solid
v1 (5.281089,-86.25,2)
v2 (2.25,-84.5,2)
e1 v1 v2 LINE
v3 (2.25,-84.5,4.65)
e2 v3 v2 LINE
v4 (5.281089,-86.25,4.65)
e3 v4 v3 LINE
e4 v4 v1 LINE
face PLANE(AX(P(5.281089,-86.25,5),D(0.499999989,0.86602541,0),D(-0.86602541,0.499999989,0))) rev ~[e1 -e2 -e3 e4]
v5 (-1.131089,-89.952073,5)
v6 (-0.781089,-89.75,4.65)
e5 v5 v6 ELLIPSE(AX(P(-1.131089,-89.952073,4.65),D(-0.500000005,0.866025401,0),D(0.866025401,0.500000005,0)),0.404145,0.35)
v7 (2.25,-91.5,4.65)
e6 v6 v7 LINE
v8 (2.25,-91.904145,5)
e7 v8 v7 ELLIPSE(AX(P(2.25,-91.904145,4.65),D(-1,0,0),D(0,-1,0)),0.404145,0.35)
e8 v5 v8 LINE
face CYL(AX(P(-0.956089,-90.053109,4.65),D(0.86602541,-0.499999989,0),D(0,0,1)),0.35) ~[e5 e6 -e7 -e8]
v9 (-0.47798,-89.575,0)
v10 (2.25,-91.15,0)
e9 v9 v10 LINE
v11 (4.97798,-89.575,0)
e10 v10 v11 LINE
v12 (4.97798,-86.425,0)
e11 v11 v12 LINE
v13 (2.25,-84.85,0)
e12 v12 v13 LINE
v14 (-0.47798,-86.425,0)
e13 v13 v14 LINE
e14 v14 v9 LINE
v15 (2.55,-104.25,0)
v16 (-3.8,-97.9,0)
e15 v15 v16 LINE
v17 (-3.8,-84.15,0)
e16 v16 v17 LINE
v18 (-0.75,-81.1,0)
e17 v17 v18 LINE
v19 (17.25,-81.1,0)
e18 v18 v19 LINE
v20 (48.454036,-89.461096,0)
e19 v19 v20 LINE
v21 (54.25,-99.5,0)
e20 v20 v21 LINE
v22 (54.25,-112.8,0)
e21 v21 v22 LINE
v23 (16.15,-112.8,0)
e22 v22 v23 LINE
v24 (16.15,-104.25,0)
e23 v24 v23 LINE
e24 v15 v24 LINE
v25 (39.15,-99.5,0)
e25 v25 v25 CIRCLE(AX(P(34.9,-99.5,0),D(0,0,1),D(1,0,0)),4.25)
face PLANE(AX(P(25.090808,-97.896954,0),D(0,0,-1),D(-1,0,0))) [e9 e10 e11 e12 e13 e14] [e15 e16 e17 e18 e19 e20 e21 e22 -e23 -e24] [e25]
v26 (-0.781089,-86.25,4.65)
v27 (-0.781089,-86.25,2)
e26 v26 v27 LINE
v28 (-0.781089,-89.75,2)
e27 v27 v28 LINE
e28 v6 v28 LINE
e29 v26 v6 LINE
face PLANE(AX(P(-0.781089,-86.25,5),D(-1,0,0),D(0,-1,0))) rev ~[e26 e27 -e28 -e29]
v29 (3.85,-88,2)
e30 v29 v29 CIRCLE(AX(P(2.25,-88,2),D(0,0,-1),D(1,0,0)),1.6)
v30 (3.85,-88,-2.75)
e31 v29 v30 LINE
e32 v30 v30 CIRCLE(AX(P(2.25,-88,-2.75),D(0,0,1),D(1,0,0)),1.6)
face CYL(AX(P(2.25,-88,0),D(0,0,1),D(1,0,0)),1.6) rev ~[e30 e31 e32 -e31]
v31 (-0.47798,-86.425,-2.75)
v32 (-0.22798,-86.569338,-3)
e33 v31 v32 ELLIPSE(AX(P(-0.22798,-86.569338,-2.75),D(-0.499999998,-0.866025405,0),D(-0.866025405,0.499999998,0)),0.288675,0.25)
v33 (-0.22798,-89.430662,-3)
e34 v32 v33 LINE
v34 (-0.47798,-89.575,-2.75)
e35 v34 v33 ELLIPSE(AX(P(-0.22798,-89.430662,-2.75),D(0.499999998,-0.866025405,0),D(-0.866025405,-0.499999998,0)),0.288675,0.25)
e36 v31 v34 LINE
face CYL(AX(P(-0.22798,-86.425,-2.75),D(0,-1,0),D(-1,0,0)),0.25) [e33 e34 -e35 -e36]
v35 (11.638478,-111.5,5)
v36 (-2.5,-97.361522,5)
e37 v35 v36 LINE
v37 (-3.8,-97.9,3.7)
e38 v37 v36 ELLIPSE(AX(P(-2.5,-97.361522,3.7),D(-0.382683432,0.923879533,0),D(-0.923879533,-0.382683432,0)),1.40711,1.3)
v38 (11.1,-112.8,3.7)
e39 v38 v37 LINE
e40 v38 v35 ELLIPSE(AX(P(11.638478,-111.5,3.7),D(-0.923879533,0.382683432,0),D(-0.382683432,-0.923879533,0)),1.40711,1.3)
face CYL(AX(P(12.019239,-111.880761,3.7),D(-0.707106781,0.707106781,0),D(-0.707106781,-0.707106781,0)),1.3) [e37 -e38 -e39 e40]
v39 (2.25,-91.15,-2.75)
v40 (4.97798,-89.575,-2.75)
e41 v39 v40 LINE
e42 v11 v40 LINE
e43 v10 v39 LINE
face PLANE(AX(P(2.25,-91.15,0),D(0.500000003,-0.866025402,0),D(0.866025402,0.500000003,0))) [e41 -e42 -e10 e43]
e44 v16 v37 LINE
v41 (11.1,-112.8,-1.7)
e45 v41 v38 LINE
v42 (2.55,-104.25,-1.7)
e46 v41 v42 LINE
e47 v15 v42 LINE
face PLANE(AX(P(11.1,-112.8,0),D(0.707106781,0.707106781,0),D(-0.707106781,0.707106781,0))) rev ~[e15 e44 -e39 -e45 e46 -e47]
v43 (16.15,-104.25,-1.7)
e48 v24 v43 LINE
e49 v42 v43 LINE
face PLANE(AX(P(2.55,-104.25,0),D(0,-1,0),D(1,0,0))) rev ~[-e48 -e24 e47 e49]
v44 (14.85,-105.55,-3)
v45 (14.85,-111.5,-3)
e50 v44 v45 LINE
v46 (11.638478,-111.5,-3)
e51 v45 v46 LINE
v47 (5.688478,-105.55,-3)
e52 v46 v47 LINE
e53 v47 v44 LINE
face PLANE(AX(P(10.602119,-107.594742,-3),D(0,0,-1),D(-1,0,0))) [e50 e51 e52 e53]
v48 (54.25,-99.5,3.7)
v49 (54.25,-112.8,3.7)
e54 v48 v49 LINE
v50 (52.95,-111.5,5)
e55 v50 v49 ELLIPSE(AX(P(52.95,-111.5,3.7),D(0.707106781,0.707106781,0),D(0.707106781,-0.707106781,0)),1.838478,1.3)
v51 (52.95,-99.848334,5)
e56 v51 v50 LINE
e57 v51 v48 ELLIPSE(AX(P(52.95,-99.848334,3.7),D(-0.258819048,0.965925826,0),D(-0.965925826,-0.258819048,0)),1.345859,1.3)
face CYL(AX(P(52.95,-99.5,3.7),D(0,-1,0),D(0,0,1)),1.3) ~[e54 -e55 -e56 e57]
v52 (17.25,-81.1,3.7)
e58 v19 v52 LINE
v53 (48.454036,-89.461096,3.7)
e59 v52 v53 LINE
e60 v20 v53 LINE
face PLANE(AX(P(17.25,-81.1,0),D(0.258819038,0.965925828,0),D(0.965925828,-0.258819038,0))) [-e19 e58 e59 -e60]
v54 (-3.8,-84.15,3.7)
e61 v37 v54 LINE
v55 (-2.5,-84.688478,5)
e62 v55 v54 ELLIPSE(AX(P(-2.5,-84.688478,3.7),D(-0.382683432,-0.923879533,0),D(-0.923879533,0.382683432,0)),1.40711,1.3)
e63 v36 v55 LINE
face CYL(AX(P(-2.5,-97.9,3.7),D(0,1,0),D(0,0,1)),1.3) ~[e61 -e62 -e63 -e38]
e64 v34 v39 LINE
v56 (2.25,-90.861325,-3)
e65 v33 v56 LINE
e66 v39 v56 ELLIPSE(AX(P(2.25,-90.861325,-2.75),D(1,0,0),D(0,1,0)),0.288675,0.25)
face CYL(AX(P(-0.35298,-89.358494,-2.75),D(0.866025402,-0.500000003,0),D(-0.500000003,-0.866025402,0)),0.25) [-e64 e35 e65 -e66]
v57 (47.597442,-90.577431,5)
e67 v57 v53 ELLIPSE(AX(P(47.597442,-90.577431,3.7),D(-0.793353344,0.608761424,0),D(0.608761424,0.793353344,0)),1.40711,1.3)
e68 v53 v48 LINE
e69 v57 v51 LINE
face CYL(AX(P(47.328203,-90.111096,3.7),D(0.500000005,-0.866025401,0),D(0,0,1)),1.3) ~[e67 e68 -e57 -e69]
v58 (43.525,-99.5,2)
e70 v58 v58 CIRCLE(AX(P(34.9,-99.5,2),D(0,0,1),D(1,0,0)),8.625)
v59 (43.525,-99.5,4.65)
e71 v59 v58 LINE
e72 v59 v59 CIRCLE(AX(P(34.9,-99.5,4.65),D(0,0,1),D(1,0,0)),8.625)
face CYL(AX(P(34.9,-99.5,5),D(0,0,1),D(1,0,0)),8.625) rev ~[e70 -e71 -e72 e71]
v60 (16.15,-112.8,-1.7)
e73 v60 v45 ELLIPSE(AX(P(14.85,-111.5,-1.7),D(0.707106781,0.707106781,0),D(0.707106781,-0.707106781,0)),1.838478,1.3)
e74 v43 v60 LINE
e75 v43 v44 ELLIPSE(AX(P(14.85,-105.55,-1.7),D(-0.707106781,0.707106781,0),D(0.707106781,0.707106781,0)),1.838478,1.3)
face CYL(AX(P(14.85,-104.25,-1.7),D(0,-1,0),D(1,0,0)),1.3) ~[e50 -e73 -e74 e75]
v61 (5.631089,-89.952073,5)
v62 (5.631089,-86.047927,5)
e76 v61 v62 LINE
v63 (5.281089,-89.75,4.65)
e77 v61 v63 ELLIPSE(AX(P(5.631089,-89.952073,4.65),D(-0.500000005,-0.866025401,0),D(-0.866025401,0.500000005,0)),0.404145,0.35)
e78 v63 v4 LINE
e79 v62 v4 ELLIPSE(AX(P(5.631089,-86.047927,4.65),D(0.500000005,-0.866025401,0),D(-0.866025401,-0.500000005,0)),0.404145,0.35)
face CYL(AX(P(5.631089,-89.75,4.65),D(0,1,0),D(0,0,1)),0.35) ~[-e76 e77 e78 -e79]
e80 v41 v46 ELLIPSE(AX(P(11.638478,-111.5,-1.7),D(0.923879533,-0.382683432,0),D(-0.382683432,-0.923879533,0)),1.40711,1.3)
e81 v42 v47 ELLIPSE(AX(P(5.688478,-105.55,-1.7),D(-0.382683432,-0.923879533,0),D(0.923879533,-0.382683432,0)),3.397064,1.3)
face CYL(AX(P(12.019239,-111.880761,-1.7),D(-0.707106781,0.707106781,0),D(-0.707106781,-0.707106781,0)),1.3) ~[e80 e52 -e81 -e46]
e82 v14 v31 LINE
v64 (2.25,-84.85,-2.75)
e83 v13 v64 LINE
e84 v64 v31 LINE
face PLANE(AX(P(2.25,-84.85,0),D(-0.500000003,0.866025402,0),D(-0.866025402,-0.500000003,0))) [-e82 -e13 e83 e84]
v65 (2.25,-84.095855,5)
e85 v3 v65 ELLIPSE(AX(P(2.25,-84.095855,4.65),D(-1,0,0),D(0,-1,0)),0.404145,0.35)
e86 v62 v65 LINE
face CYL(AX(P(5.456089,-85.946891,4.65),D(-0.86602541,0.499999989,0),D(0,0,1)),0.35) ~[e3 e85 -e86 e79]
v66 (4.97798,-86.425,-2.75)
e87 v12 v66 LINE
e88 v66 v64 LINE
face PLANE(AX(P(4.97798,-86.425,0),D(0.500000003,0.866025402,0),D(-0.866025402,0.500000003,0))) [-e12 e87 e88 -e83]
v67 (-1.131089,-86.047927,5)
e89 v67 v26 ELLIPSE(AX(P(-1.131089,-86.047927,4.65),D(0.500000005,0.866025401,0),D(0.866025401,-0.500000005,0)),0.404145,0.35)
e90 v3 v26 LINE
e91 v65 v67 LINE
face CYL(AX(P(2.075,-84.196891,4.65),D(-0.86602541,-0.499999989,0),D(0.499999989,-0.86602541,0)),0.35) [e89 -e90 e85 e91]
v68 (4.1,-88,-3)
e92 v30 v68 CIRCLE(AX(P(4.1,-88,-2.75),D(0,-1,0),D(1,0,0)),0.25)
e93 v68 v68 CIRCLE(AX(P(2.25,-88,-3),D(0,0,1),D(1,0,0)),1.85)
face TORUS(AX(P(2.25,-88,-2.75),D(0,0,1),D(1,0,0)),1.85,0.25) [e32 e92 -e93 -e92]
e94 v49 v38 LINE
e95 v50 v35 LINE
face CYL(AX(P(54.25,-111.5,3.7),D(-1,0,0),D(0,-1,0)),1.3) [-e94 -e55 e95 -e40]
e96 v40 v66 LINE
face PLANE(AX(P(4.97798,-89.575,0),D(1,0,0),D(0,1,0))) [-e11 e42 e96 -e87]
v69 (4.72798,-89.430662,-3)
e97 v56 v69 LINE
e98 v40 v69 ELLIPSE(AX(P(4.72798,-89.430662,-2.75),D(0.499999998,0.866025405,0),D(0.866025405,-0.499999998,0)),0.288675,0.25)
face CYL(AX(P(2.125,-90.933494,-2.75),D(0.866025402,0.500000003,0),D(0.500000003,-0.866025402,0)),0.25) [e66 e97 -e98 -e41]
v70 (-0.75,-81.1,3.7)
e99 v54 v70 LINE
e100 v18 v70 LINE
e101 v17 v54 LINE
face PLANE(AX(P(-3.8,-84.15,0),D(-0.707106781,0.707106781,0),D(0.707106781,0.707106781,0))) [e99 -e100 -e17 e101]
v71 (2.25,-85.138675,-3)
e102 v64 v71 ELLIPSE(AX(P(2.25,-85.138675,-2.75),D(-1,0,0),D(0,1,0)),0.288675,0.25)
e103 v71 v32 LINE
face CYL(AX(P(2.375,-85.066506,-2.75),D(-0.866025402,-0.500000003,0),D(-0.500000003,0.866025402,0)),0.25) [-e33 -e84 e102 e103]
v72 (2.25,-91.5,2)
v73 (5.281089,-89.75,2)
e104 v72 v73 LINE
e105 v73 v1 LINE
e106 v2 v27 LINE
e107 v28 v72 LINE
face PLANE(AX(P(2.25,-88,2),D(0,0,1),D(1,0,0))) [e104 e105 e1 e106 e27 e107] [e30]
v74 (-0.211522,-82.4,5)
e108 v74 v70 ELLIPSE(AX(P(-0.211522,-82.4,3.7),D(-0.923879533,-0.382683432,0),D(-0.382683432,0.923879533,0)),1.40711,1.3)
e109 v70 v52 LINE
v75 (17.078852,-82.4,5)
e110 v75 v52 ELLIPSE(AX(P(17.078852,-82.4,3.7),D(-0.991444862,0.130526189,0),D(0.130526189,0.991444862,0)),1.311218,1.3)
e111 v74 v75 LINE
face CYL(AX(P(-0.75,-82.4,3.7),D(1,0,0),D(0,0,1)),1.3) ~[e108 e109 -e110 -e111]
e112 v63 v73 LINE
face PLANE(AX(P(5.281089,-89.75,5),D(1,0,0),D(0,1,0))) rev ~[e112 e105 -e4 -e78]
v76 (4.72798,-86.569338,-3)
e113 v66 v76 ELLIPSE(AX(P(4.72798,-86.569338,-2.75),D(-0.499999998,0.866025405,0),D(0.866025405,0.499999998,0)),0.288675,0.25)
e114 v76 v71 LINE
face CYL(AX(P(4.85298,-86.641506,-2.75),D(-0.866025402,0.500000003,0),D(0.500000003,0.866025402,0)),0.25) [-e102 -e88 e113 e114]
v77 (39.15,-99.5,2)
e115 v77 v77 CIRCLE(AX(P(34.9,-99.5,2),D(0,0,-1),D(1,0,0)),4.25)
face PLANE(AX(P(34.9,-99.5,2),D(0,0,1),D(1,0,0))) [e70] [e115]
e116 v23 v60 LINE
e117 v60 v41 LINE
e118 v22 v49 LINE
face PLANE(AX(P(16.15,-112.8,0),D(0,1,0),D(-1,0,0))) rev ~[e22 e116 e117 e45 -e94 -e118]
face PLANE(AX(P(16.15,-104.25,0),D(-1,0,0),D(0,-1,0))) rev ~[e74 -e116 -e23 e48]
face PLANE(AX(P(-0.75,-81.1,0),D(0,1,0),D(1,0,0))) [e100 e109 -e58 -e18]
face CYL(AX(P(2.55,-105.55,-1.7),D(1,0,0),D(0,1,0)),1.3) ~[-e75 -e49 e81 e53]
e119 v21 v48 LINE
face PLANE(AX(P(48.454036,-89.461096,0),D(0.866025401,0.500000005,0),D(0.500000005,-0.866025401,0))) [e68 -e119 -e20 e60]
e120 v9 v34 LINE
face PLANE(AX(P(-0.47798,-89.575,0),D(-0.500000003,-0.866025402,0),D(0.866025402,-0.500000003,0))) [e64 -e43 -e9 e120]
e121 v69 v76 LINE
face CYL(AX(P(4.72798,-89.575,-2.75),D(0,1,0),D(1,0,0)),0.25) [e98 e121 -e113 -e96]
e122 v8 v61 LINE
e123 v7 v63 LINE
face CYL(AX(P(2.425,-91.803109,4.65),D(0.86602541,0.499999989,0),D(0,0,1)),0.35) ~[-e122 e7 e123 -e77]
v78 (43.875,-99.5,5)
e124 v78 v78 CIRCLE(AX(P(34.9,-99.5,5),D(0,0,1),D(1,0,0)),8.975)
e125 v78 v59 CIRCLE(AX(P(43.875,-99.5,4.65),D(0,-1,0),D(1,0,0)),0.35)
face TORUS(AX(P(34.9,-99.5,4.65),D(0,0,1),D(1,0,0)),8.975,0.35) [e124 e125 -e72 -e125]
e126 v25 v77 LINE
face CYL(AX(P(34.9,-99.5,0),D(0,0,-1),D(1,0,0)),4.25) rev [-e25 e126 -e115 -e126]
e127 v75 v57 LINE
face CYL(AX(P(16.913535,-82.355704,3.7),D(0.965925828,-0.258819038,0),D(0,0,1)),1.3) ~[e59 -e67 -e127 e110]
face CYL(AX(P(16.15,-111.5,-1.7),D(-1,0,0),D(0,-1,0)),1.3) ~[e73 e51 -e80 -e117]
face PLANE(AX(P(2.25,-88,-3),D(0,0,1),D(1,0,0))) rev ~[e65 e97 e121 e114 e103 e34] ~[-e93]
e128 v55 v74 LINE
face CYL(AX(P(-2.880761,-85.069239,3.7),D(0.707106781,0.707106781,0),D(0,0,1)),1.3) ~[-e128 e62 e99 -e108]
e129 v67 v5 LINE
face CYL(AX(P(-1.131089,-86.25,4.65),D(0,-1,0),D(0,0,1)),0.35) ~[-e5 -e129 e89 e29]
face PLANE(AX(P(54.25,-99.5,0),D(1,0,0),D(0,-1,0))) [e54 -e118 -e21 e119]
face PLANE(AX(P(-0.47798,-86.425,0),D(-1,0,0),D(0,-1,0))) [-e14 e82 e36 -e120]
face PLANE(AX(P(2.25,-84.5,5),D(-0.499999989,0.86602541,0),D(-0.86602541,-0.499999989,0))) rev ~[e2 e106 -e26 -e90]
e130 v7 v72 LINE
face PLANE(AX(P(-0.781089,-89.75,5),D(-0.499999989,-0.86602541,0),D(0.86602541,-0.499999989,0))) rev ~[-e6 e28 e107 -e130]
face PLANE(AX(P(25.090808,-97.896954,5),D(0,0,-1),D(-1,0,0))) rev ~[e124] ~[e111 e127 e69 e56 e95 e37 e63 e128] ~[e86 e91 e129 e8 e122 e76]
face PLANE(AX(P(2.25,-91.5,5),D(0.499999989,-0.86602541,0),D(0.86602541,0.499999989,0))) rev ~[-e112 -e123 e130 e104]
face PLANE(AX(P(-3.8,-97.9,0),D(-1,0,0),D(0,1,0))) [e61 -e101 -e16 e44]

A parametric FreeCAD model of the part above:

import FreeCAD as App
import Part
import Sketcher
from FreeCAD import Vector
Q = App.Units.Quantity


def edges_at(feature, points):
    """Names of the edges that pass closest to the given points."""
    edges = feature.Shape.Edges
    near = lambda p: min(range(len(edges)), key=lambda i: edges[i].distToShape(Part.Vertex(*p))[0])
    return sorted({f"Edge{near(p) + 1}" for p in points})


def add_polygon(sketch, points):
    """Adds a closed chain of lines whose ends are joined by coincident constraints."""
    first, n = sketch.GeometryCount, len(points)
    for a, b in zip(points, points[1:] + points[:1]):
        sketch.addGeometry(Part.LineSegment(App.Vector(*a, 0), App.Vector(*b, 0)), False)
    for i in range(n):
        sketch.addConstraint(Sketcher.Constraint("Coincident", first + i, 2, first + (i + 1) % n, 1))

doc = App.newDocument("Part")
body = doc.addObject("PartDesign::Body", "Body")

# Sketch on XY plane
sketch1 = body.newObject("Sketcher::SketchObject", "Sketch")
sketch1.AttachmentSupport = (doc.getObject("XY_Plane"), [""])
sketch1.MapMode = "FlatFace"
add_polygon(sketch1, [(15, 6.9), (-3, 6.9), (-6, 3.9), (-6, -9.9), (8.8, -24.8), (52, -24.8), (52, -11.5), (46.2, -1.5)])  # lines 0-7
sketch1.addGeometry(Part.Circle(Vector(32.6, -11.5, 0), Vector(0, 0, 1), 4.2), False)  # 8
sketch1.addConstraint([
    Sketcher.Constraint("Horizontal", 0),
    Sketcher.Constraint("Vertical", 2),
    Sketcher.Constraint("Horizontal", 4),
    Sketcher.Constraint("Vertical", 5),
    Sketcher.Constraint("Perpendicular", 1, 3),
    Sketcher.Constraint("Horizontal", 8, 3, 5, 2),
    Sketcher.Constraint("Diameter", 8, Q("8.5 mm")),
    Sketcher.Constraint("DistanceX", 0, 2, 0, 1, Q("18 mm")),
    Sketcher.Constraint("Angle", 1, Q("-135 deg")),
    Sketcher.Constraint("Angle", 6, Q("120 deg")),
    Sketcher.Constraint("Angle", 7, Q("165 deg")),
    Sketcher.Constraint("DistanceY", 5, 1, 5, 2, Q("13.3 mm")),
    Sketcher.Constraint("DistanceX", 0, 2, -1, 1, Q("3 mm")),
    Sketcher.Constraint("DistanceX", -1, 1, 4, 2, Q("52 mm")),
    Sketcher.Constraint("DistanceX", 4, 1, 4, 2, Q("43.15 mm")),
    Sketcher.Constraint("DistanceY", 2, 2, 2, 1, Q("13.75 mm")),
    Sketcher.Constraint("DistanceY", 8, 3, -1, 1, Q("11.5 mm")),
    Sketcher.Constraint("DistanceY", -1, 1, 0, 2, Q("6.9 mm")),
    Sketcher.Constraint("DistanceX", 1, 2, 8, 3, Q("38.7 mm")),
])
pad1 = body.newObject("PartDesign::Pad", "Pad")
pad1.Profile = sketch1
pad1.Length = 5

# Sketch on XY plane
sketch2 = body.newObject("Sketcher::SketchObject", "Sketch001")
sketch2.AttachmentSupport = (doc.getObject("XY_Plane"), [""])
sketch2.MapMode = "FlatFace"
add_polygon(sketch2, [(14, -16), (0, -16), (9, -25), (14, -25)])  # lines 0-3
sketch2.addConstraint([
    Sketcher.Constraint("Horizontal", 0),
    Sketcher.Constraint("Horizontal", 2),
    Sketcher.Constraint("Vertical", 3),
    Sketcher.Constraint("Angle", 1, Q("-45 deg")),
    Sketcher.Constraint("DistanceX", 0, 2, 0, 1, Q("13.6 mm")),
    Sketcher.Constraint("DistanceX", 2, 1, 2, 2, Q("5.05 mm")),
    Sketcher.Constraint("DistanceX", -1, 1, 0, 2, Q("0.3 mm")),
    Sketcher.Constraint("DistanceY", 1, 2, -1, 1, Q("24.8 mm")),
])
pad2 = body.newObject("PartDesign::Pad", "Pad001")
pad2.Profile = sketch2
pad2.Length = 3
pad2.Reversed = True

# Sketch on XY plane
sketch3 = body.newObject("Sketcher::SketchObject", "Sketch002")
sketch3.AttachmentSupport = (doc.getObject("XY_Plane"), [""])
sketch3.MapMode = "FlatFace"
sketch3.AttachmentOffset = App.Placement(Vector(0, 0, 5), App.Rotation())
sketch3.addGeometry(Part.Circle(Vector(33, -12, 0), Vector(0, 0, 1), 9), False)
sketch3.addConstraint([
    Sketcher.Constraint("Diameter", 0, Q("17.25 mm")),
    Sketcher.Constraint("DistanceY", 0, 3, -1, 1, Q("11.5 mm")),
    Sketcher.Constraint("DistanceX", -1, 1, 0, 3, Q("32.65 mm")),
])
pocket1 = body.newObject("PartDesign::Pocket", "Pocket")
pocket1.Profile = sketch3
pocket1.Length = 3

# Sketch on XY plane
sketch4 = body.newObject("Sketcher::SketchObject", "Sketch003")
sketch4.AttachmentSupport = (doc.getObject("XY_Plane"), [""])
sketch4.MapMode = "FlatFace"
sketch4.AttachmentOffset = App.Placement(Vector(0, 0, 5), App.Rotation())
add_polygon(sketch4, [(0, -3.5), (3, -1.8), (3, 1.8), (0, 3.5), (-3, 1.8), (-3, -1.8)])  # lines 0-5
sketch4.addConstraint([
    Sketcher.Constraint("Vertical", 1),
    Sketcher.Constraint("Vertical", 4),
    Sketcher.Constraint("Symmetric", 0, 2, 3, 2, -1, 1),
    Sketcher.Constraint("Symmetric", 2, 2, 5, 2, -1, 1),
    Sketcher.Constraint("PointOnObject", 2, 2, -2),
    Sketcher.Constraint("Parallel", 2, 5),
    Sketcher.Constraint("Horizontal", 1, 2, 3, 2),
    Sketcher.Constraint("Angle", 0, Q("29.999999 deg")),
    Sketcher.Constraint("DistanceY", 1, 1, 1, 2, Q("3.5 mm")),
    Sketcher.Constraint("DistanceY", 5, 2, 2, 2, Q("7 mm")),
])
pocket2 = body.newObject("PartDesign::Pocket", "Pocket001")
pocket2.Profile = sketch4
pocket2.Length = 3

# Sketch on XY plane
sketch5 = body.newObject("Sketcher::SketchObject", "Sketch004")
sketch5.AttachmentSupport = (doc.getObject("XY_Plane"), [""])
sketch5.MapMode = "FlatFace"
sketch5.AttachmentOffset = App.Placement(Vector(0, 0, -3), App.Rotation())
sketch5.addGeometry(Part.Circle(Vector(0, 0, 0), Vector(0, 0, 1), 1.6), False)
sketch5.addConstraint([
    Sketcher.Constraint("Coincident", 0, 3, -1, 1),
    Sketcher.Constraint("Diameter", 0, Q("3.2 mm")),
])
pocket3 = body.newObject("PartDesign::Pocket", "Pocket002")
pocket3.Profile = sketch5
pocket3.Type = "ThroughAll"
pocket3.Reversed = True

# Sketch on XY plane
sketch6 = body.newObject("Sketcher::SketchObject", "Sketch005")
sketch6.AttachmentSupport = (doc.getObject("XY_Plane"), [""])
sketch6.MapMode = "FlatFace"
add_polygon(sketch6, [(0, -3.1), (2.7, -1.6), (2.7, 1.6), (0, 3.1), (-2.7, 1.6), (-2.7, -1.6)])  # lines 0-5
sketch6.addGeometry(Part.Circle(Vector(0, 0, 0), Vector(0, 0, 1), 1.6), False)  # 6
sketch6.addConstraint([
    Sketcher.Constraint("Vertical", 1),
    Sketcher.Constraint("Vertical", 4),
    Sketcher.Constraint("Coincident", 6, 3, -1, 1),
    Sketcher.Constraint("Symmetric", 0, 2, 3, 2, -1, 1),
    Sketcher.Constraint("Symmetric", 2, 2, 5, 2, -1, 1),
    Sketcher.Constraint("PointOnObject", 2, 2, -2),
    Sketcher.Constraint("Parallel", 2, 5),
    Sketcher.Constraint("Horizontal", 1, 2, 3, 2),
    Sketcher.Constraint("Diameter", 6, Q("3.2 mm")),
    Sketcher.Constraint("Angle", 0, Q("30 deg")),
    Sketcher.Constraint("DistanceY", 1, 1, 1, 2, Q("3.15 mm")),
    Sketcher.Constraint("Distance", 0, Q("3.15 mm")),
])
pad3 = body.newObject("PartDesign::Pad", "Pad002")
pad3.Profile = sketch6
pad3.Length = 3
pad3.Reversed = True
doc.recompute()

fillet = body.newObject("PartDesign::Fillet", "Fillet")
fillet.Base = (pad3, edges_at(pad3, [
    (-1.516, -2.625, 5),
    (-3.031, 0, 5),
    (-1.516, 2.625, 5),
    (1.516, 2.625, 5),
    (3.031, 0, 5),
    (1.516, -2.625, 5),
]))
fillet.Radius = 0.35
doc.recompute()

fillet2 = body.newObject("PartDesign::Fillet", "Fillet001")
fillet2.Base = (fillet, edges_at(fillet, [(24.025, -11.5, 5)]))
fillet2.Radius = 0.35
doc.recompute()

fillet3 = body.newObject("PartDesign::Fillet", "Fillet002")
fillet3.Base = (fillet2, edges_at(fillet2, [
    (1.364, -2.362, -3),
    (2.728, 0, -3),
    (1.364, 2.362, -3),
    (-1.364, 2.362, -3),
    (-2.728, 0, -3),
    (-1.364, -2.362, -3),
    (-1.6, 0, -3),
]))
fillet3.Radius = 0.25
doc.recompute()

fillet4 = body.newObject("PartDesign::Fillet", "Fillet003")
fillet4.Base = (fillet3, edges_at(fillet3, [
    (7.1, -16.25, -3),
    (13.9, -20.525, -3),
    (11.375, -24.8, -3),
    (4.575, -20.525, -3),
]))
fillet4.Radius = 1.3
doc.recompute()

fillet5 = body.newObject("PartDesign::Fillet", "Fillet004")
fillet5.Base = (fillet4, edges_at(fillet4, [
    (52, -18.15, 5),
    (30.425, -24.8, 5),
    (1.4, -17.35, 5),
    (-6.05, -3.025, 5),
    (-4.525, 5.375, 5),
    (6, 6.9, 5),
    (30.602, 2.719, 5),
    (49.102, -6.481, 5),
]))
fillet5.Radius = 1.3
body2 = doc.addObject("PartDesign::Body", "Body001")
doc.recompute()

body.Placement = App.Placement(Vector(2.25, -88, 0), App.Rotation(Vector(0, 0, 1), 0))
boolean = body2.newObject("PartDesign::Boolean", "Boolean")
boolean.Type = "Fuse"
boolean.addObjects([body])

doc.recompute()
